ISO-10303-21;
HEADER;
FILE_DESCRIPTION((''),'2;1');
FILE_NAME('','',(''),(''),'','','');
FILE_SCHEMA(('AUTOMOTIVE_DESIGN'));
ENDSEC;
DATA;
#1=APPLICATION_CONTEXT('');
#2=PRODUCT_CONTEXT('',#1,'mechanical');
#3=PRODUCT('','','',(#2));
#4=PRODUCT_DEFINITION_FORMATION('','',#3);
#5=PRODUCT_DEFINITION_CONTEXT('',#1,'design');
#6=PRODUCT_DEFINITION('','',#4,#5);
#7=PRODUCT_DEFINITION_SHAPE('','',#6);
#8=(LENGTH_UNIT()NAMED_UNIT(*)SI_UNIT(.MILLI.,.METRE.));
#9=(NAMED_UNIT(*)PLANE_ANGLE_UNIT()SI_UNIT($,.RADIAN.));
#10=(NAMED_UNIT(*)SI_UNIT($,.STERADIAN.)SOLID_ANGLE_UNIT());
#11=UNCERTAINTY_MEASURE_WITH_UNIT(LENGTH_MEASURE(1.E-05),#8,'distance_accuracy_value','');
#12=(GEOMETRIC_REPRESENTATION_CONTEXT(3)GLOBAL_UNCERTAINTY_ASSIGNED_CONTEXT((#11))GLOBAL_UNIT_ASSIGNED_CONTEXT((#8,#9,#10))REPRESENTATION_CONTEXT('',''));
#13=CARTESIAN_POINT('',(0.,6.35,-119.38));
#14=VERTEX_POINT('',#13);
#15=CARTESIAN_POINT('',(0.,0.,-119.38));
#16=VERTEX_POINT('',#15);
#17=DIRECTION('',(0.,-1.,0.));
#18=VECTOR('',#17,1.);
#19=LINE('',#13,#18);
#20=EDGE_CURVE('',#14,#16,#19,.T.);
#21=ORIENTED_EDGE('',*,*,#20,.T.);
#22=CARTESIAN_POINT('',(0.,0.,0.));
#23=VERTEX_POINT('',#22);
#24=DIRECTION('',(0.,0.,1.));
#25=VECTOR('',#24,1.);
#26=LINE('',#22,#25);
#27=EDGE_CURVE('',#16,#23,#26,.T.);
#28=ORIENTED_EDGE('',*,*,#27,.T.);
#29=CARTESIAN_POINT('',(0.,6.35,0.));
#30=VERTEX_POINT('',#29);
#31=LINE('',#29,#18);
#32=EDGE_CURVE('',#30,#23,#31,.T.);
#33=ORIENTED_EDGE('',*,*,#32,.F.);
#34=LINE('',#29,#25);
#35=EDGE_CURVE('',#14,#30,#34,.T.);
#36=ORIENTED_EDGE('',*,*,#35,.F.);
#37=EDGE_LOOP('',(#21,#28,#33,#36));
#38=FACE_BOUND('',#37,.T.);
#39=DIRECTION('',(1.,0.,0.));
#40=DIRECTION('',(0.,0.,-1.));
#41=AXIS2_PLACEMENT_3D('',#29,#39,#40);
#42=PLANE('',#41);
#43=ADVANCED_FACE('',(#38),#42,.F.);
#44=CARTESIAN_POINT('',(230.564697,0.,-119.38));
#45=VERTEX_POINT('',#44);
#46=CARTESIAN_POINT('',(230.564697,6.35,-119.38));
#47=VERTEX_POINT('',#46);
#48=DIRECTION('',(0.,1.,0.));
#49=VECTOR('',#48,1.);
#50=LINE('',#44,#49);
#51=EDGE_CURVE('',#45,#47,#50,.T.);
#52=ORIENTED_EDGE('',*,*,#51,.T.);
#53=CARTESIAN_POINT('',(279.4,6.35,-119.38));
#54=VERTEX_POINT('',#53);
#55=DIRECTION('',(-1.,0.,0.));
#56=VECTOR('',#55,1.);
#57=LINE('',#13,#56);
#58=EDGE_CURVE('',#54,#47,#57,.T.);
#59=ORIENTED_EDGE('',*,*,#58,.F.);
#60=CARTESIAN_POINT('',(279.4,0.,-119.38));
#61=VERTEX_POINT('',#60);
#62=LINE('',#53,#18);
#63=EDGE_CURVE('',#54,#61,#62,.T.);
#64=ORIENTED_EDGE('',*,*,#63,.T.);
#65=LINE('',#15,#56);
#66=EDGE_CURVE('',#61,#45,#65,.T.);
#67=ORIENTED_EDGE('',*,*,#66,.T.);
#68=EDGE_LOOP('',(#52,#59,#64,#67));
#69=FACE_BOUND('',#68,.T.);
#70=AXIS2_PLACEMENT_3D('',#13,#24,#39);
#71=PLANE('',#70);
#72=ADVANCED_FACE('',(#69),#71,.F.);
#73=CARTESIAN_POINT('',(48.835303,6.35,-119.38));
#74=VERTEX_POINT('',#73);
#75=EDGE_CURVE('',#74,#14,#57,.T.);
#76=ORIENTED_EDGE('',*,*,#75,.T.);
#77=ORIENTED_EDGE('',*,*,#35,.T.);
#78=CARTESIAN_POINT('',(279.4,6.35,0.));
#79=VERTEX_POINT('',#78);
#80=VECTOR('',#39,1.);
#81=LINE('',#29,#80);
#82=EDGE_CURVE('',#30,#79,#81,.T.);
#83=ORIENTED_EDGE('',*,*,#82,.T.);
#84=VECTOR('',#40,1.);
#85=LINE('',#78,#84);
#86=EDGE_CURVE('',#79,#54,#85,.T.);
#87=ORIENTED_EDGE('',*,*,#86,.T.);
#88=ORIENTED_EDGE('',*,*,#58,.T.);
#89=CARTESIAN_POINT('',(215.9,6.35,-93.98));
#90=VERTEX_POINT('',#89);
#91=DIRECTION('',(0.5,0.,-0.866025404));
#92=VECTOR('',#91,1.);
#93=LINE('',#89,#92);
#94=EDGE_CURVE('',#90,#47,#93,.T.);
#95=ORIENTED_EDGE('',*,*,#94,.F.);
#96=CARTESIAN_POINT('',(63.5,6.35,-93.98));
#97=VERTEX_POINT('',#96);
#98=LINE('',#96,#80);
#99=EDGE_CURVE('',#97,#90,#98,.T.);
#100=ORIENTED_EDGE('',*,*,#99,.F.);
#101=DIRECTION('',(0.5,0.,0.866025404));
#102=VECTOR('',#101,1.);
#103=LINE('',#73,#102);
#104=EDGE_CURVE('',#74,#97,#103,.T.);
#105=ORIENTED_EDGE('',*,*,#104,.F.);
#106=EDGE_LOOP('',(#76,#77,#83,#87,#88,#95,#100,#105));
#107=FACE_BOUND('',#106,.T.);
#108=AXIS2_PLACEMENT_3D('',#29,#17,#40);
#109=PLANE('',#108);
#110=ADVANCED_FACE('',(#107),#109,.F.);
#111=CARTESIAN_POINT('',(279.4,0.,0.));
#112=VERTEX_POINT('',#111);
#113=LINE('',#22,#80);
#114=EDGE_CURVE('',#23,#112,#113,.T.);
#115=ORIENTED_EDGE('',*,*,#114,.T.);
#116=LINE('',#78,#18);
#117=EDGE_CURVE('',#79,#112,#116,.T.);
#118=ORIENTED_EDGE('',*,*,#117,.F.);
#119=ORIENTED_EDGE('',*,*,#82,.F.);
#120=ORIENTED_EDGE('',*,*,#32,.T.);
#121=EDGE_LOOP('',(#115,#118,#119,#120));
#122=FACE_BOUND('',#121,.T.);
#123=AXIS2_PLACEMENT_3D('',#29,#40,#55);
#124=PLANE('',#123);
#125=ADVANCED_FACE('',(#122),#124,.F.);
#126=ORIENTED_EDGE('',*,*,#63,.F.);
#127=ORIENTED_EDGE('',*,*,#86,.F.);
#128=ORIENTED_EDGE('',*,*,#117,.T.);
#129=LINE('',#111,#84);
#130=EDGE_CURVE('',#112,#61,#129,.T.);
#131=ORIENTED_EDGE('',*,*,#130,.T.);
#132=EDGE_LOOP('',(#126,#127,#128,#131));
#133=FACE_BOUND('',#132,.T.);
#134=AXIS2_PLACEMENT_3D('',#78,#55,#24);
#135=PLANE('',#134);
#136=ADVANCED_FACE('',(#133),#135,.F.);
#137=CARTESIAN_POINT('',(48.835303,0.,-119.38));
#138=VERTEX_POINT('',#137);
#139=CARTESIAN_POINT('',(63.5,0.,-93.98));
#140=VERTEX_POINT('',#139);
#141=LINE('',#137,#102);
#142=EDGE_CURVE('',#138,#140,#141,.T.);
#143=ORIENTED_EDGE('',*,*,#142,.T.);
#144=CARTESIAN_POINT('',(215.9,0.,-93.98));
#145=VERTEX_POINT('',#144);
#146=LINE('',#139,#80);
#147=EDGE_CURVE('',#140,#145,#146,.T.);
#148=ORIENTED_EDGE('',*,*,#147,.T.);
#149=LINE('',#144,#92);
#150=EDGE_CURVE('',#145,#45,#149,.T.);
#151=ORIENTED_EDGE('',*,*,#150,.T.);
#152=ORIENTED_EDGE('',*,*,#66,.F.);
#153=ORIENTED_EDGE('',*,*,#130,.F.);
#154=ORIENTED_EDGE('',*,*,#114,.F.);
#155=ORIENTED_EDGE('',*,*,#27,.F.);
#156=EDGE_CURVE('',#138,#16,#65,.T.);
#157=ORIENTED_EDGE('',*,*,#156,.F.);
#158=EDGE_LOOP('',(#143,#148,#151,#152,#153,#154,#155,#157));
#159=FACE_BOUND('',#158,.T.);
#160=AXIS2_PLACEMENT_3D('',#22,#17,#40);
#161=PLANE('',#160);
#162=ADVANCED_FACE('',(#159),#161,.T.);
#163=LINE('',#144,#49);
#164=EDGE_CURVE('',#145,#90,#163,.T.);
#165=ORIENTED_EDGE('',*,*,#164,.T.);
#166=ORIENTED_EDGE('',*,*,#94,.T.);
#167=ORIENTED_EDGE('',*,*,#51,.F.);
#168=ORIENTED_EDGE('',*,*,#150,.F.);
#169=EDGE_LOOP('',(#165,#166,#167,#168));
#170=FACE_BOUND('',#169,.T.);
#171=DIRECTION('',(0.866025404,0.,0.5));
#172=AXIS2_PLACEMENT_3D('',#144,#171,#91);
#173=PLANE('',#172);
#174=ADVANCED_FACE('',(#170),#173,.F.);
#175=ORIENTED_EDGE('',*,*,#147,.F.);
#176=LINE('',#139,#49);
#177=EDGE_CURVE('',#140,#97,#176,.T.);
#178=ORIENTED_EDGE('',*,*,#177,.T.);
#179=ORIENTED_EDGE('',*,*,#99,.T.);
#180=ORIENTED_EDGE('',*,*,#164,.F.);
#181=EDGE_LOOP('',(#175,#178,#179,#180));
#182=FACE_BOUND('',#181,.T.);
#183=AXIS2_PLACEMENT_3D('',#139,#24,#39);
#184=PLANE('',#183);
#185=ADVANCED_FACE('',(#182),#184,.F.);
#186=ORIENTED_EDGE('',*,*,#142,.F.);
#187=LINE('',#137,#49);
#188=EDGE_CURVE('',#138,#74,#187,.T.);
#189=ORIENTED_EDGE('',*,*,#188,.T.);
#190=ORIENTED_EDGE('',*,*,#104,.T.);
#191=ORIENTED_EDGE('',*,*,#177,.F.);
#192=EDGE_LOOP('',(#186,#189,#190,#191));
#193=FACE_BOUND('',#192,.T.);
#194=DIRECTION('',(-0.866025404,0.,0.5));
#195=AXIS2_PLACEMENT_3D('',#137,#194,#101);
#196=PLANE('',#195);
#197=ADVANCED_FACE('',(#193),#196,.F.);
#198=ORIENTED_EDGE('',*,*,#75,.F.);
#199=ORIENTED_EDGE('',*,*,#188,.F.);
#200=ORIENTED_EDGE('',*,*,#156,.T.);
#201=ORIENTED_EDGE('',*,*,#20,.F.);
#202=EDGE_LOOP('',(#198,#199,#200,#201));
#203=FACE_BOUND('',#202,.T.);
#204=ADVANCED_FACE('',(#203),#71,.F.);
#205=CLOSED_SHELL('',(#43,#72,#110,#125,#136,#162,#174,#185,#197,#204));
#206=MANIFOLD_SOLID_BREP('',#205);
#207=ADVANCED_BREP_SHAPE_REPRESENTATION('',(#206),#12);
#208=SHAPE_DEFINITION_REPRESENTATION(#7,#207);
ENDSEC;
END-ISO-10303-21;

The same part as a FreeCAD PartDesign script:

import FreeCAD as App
import Part
import Sketcher
from FreeCAD import Vector
Q = App.Units.Quantity


def add_polygon(sketch, points):
    """Adds a closed chain of lines whose ends are joined by coincident constraints."""
    first, n = sketch.GeometryCount, len(points)
    for a, b in zip(points, points[1:] + points[:1]):
        sketch.addGeometry(Part.LineSegment(App.Vector(*a, 0), App.Vector(*b, 0)), False)
    for i in range(n):
        sketch.addConstraint(Sketcher.Constraint("Coincident", first + i, 2, first + (i + 1) % n, 1))

doc = App.newDocument("Part")
body = doc.addObject("PartDesign::Body", "Body")

sketch1 = body.newObject("Sketcher::SketchObject", "Sketch")
sketch1.AttachmentSupport = (doc.getObject("XZ_Plane"), [""])
sketch1.MapMode = "FlatFace"
add_polygon(sketch1, [(0, -119.38), (0, 0), (279.4, 0), (279.4, -119.38)])
sketch1.addConstraint(Sketcher.Constraint("Vertical", 0))
sketch1.addConstraint(Sketcher.Constraint("Horizontal", 1))
sketch1.addConstraint(Sketcher.Constraint("Vertical", 2))
sketch1.addConstraint(Sketcher.Constraint("Horizontal", 3))
sketch1.addConstraint(Sketcher.Constraint("Coincident", 0, 2, -1, 1))
sketch1.addConstraint(Sketcher.Constraint("DistanceX", 1, 1, 1, 2, Q("11 in")))
sketch1.addConstraint(Sketcher.Constraint("DistanceY", 0, 1, 0, 2, Q("4.7 in")))
pad1 = body.newObject("PartDesign::Pad", "Pad")
pad1.Profile = sketch1
pad1.Length = Q("0.25 in")
pad1.Reversed = True

sketch2 = body.newObject("Sketcher::SketchObject", "Sketch001")
sketch2.AttachmentSupport = (doc.getObject("XZ_Plane"), [""])
sketch2.MapMode = "FlatFace"
sketch2.AttachmentOffset = App.Placement(Vector(0, 0, -0.25 * 25.4), App.Rotation())
add_polygon(sketch2, [(48.835303, -119.38), (63.5, -93.98), (215.9, -93.98), (230.564697, -119.38)])
sketch2.addConstraint(Sketcher.Constraint("Horizontal", 1))
sketch2.addConstraint(Sketcher.Constraint("Horizontal", 3))
sketch2.addConstraint(Sketcher.Constraint("Equal", 0, 2))
sketch2.addConstraint(Sketcher.Constraint("DistanceX", 1, 1, 1, 2, Q("6 in")))
sketch2.addConstraint(Sketcher.Constraint("Angle", 0, Q("60 deg")))
sketch2.addConstraint(Sketcher.Constraint("DistanceY", 2, 2, 1, 2, Q("1 in")))
sketch2.addConstraint(Sketcher.Constraint("DistanceX", -1, 1, 0, 2, Q("2.5 in")))
sketch2.addConstraint(Sketcher.Constraint("DistanceY", 0, 2, -1, 1, Q("3.7 in")))
pocket1 = body.newObject("PartDesign::Pocket", "Pocket")
pocket1.Profile = sketch2
pocket1.Type = "ThroughAll"
pocket1.Reversed = True

doc.recompute()
